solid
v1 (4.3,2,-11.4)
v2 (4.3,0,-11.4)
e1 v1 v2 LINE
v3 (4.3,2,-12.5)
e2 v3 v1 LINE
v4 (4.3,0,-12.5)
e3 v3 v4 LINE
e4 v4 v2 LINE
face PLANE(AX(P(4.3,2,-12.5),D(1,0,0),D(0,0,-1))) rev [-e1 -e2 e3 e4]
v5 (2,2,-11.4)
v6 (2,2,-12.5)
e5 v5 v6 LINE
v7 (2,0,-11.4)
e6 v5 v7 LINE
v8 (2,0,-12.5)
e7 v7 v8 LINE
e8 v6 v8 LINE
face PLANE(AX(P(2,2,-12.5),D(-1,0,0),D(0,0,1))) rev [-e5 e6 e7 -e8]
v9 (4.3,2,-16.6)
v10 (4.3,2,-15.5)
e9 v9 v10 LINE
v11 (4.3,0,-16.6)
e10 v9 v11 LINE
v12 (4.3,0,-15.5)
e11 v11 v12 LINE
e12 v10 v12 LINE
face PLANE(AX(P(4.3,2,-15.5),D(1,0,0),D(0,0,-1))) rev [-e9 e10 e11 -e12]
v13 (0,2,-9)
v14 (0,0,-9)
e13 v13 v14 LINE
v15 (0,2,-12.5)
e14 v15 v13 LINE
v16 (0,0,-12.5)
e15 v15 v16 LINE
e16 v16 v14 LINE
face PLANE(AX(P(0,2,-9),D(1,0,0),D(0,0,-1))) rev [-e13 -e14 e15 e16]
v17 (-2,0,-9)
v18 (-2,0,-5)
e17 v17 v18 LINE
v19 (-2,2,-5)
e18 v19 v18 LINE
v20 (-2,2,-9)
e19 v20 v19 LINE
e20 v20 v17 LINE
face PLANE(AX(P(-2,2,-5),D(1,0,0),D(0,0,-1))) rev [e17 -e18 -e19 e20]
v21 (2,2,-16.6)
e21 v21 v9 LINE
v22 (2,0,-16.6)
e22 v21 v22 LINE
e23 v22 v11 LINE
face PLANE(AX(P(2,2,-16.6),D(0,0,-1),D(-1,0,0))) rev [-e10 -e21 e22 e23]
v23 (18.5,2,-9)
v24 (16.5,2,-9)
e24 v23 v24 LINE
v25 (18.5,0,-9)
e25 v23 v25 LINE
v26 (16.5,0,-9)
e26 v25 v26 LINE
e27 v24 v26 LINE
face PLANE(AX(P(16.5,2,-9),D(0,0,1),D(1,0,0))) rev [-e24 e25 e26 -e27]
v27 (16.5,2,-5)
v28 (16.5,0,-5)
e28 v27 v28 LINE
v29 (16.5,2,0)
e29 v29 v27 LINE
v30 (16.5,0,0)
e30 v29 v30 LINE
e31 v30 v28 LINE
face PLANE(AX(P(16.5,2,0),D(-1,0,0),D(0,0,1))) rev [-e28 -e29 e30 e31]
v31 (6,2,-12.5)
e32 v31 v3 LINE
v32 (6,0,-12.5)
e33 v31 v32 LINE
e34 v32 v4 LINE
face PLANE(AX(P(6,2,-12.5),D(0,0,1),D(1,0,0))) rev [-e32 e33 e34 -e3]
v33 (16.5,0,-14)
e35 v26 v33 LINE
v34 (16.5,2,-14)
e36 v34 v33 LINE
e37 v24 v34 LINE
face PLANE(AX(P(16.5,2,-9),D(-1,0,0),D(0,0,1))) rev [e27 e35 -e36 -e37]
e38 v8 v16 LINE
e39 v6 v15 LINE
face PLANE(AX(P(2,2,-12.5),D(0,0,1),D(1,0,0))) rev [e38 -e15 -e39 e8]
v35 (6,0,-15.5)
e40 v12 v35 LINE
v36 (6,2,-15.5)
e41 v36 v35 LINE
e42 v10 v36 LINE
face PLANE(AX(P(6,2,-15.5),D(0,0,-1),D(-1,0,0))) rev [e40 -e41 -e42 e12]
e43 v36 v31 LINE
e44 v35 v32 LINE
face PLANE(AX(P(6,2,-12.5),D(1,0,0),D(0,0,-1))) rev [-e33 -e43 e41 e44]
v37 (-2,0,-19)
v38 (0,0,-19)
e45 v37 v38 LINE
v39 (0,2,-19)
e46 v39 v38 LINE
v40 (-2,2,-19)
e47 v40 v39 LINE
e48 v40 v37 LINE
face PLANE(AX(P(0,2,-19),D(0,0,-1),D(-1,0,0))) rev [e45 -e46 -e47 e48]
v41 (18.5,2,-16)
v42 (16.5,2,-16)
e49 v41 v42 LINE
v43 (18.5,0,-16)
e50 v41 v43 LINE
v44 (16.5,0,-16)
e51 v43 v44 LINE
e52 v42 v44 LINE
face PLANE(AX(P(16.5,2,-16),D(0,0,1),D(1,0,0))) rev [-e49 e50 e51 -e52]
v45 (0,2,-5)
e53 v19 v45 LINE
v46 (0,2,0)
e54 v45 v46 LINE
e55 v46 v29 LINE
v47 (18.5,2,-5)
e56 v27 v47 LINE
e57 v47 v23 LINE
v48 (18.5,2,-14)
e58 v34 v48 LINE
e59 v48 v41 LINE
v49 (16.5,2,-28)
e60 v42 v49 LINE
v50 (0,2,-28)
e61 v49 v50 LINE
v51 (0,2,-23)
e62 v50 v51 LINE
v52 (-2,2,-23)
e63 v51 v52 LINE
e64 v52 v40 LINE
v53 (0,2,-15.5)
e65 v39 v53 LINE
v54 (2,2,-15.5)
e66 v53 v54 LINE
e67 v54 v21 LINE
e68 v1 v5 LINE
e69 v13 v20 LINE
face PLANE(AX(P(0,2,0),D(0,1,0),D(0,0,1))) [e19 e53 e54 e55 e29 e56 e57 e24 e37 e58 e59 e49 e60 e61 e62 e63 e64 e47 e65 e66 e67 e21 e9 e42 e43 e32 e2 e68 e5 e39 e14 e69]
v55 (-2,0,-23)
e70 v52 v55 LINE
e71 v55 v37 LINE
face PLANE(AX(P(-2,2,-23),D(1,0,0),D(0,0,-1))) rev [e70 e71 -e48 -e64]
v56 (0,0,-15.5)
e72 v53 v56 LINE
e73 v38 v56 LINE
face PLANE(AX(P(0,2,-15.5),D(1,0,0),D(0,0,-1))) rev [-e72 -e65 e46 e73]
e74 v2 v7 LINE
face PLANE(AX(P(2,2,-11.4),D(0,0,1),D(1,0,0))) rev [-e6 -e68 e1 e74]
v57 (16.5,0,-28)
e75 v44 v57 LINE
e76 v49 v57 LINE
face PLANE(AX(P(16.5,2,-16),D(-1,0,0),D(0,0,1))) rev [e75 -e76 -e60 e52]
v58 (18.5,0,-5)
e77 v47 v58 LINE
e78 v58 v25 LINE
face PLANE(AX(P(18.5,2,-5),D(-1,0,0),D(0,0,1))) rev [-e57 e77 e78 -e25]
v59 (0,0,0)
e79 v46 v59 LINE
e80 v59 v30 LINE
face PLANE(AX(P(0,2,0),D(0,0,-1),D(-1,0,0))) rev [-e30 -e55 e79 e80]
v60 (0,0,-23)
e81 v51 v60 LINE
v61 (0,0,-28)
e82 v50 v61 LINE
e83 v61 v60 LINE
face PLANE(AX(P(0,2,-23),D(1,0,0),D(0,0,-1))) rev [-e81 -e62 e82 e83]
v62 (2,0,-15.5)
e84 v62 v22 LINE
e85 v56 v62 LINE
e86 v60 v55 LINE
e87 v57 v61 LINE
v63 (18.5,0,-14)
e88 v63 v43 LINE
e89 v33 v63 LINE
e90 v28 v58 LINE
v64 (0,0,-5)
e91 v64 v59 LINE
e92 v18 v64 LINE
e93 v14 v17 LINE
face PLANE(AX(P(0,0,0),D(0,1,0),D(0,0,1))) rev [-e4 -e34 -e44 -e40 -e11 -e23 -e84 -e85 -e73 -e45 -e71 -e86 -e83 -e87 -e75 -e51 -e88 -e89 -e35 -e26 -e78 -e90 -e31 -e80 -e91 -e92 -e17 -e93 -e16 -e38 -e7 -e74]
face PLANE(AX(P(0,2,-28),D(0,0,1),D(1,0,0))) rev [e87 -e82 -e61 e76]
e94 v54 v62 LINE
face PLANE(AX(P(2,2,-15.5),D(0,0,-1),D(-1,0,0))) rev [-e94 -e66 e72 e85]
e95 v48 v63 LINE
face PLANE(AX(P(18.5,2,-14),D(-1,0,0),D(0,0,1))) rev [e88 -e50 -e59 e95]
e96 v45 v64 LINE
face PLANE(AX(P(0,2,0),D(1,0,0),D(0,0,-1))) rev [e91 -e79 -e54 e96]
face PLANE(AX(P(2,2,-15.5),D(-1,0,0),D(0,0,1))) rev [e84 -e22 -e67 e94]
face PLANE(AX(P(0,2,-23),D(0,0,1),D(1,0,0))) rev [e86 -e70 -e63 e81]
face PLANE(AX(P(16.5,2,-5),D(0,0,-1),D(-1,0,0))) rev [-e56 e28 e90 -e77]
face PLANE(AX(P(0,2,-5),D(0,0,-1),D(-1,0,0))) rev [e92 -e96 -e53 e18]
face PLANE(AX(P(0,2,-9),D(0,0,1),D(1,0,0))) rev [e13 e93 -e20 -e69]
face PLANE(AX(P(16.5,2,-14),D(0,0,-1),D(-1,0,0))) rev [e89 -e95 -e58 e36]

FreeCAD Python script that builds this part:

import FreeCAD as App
import Part
import Sketcher

V = App.Vector
Q = App.Units.Quantity

doc = App.newDocument("Part")
params = doc.addObject("Spreadsheet::Sheet", "Params")
for row, (alias, value) in enumerate([
    ("sketch1_width", "2 mm"),
    ("sketch1_height", "5 mm"),
    ("sketch1_height2", "4 mm"),
    ("sketch1_height3", "12 mm"),
    ("sketch1_height4", "3 mm"),
    ("pad1_length", "2 mm"),
], start=1):
    params.set(f"A{row}", alias)
    params.set(f"B{row}", "=" + value)
    params.setAlias(f"B{row}", alias)

body = doc.addObject("PartDesign::Body", "Body")

# Sketch on XZ plane
sketch1 = body.newObject("Sketcher::SketchObject", "Sketch")
sketch1.AttachmentSupport = (doc.getObject("XZ_Plane"), [""])
sketch1.MapMode = "FlatFace"
sketch1.addGeometry([
    Part.LineSegment(V(0, 0, 0), V(16.5, 0, 0)),  # 0
    Part.LineSegment(V(16.5, 0, 0), V(16.5, -5, 0)),  # 1
    Part.LineSegment(V(16.5, -5, 0), V(18.5, -5, 0)),  # 2
    Part.LineSegment(V(18.5, -5, 0), V(18.5, -9, 0)),  # 3
    Part.LineSegment(V(18.5, -9, 0), V(16.5, -9, 0)),  # 4
    Part.LineSegment(V(16.5, -9, 0), V(16.5, -14, 0)),  # 5
    Part.LineSegment(V(16.5, -14, 0), V(18.5, -14, 0)),  # 6
    Part.LineSegment(V(18.5, -14, 0), V(18.5, -16, 0)),  # 7
    Part.LineSegment(V(18.5, -16, 0), V(16.5, -16, 0)),  # 8
    Part.LineSegment(V(16.5, -16, 0), V(16.5, -28, 0)),  # 9
    Part.LineSegment(V(16.5, -28, 0), V(0, -28, 0)),  # 10
    Part.LineSegment(V(0, -28, 0), V(0, -23, 0)),  # 11
    Part.LineSegment(V(0, -23, 0), V(-2, -23, 0)),  # 12
    Part.LineSegment(V(-2, -23, 0), V(-2, -19, 0)),  # 13
    Part.LineSegment(V(-2, -19, 0), V(0, -19, 0)),  # 14
    Part.LineSegment(V(0, -19, 0), V(0, -15.5, 0)),  # 15
    Part.LineSegment(V(0, -15.5, 0), V(2, -15.5, 0)),  # 16
    Part.LineSegment(V(2, -15.5, 0), V(2, -16.6, 0)),  # 17
    Part.LineSegment(V(2, -16.6, 0), V(4.3, -16.6, 0)),  # 18
    Part.LineSegment(V(4.3, -16.6, 0), V(4.3, -15.5, 0)),  # 19
    Part.LineSegment(V(4.3, -15.5, 0), V(6, -15.5, 0)),  # 20
    Part.LineSegment(V(6, -15.5, 0), V(6, -12.5, 0)),  # 21
    Part.LineSegment(V(6, -12.5, 0), V(4.3, -12.5, 0)),  # 22
    Part.LineSegment(V(4.3, -12.5, 0), V(4.3, -11.4, 0)),  # 23
    Part.LineSegment(V(4.3, -11.4, 0), V(2, -11.4, 0)),  # 24
    Part.LineSegment(V(2, -11.4, 0), V(2, -12.5, 0)),  # 25
    Part.LineSegment(V(2, -12.5, 0), V(0, -12.5, 0)),  # 26
    Part.LineSegment(V(0, -12.5, 0), V(0, -9, 0)),  # 27
    Part.LineSegment(V(0, -9, 0), V(-2, -9, 0)),  # 28
    Part.LineSegment(V(-2, -9, 0), V(-2, -5, 0)),  # 29
    Part.LineSegment(V(-2, -5, 0), V(0, -5, 0)),  # 30
    Part.LineSegment(V(0, -5, 0), V(0, 0, 0)),  # 31
], False)
sketch1.addConstraint([
    Sketcher.Constraint("Coincident", 0, 2, 1, 1),
    Sketcher.Constraint("Coincident", 1, 2, 2, 1),
    Sketcher.Constraint("Coincident", 2, 2, 3, 1),
    Sketcher.Constraint("Coincident", 3, 2, 4, 1),
    Sketcher.Constraint("Coincident", 4, 2, 5, 1),
    Sketcher.Constraint("Coincident", 5, 2, 6, 1),
    Sketcher.Constraint("Coincident", 6, 2, 7, 1),
    Sketcher.Constraint("Coincident", 7, 2, 8, 1),
    Sketcher.Constraint("Coincident", 8, 2, 9, 1),
    Sketcher.Constraint("Coincident", 9, 2, 10, 1),
    Sketcher.Constraint("Coincident", 10, 2, 11, 1),
    Sketcher.Constraint("Coincident", 11, 2, 12, 1),
    Sketcher.Constraint("Coincident", 12, 2, 13, 1),
    Sketcher.Constraint("Coincident", 13, 2, 14, 1),
    Sketcher.Constraint("Coincident", 14, 2, 15, 1),
    Sketcher.Constraint("Coincident", 15, 2, 16, 1),
    Sketcher.Constraint("Coincident", 16, 2, 17, 1),
    Sketcher.Constraint("Coincident", 17, 2, 18, 1),
    Sketcher.Constraint("Coincident", 18, 2, 19, 1),
    Sketcher.Constraint("Coincident", 19, 2, 20, 1),
    Sketcher.Constraint("Coincident", 20, 2, 21, 1),
    Sketcher.Constraint("Coincident", 21, 2, 22, 1),
    Sketcher.Constraint("Coincident", 22, 2, 23, 1),
    Sketcher.Constraint("Coincident", 23, 2, 24, 1),
    Sketcher.Constraint("Coincident", 24, 2, 25, 1),
    Sketcher.Constraint("Coincident", 25, 2, 26, 1),
    Sketcher.Constraint("Coincident", 26, 2, 27, 1),
    Sketcher.Constraint("Coincident", 27, 2, 28, 1),
    Sketcher.Constraint("Coincident", 28, 2, 29, 1),
    Sketcher.Constraint("Coincident", 29, 2, 30, 1),
    Sketcher.Constraint("Coincident", 30, 2, 31, 1),
    Sketcher.Constraint("Coincident", 31, 2, 0, 1),
    Sketcher.Constraint("Horizontal", 0),
    Sketcher.Constraint("Vertical", 1),
    Sketcher.Constraint("Horizontal", 2),
    Sketcher.Constraint("Vertical", 3),
    Sketcher.Constraint("Horizontal", 4),
    Sketcher.Constraint("Vertical", 5),
    Sketcher.Constraint("Horizontal", 6),
    Sketcher.Constraint("Vertical", 7),
    Sketcher.Constraint("Horizontal", 8),
    Sketcher.Constraint("Vertical", 9),
    Sketcher.Constraint("Horizontal", 10),
    Sketcher.Constraint("Vertical", 11),
    Sketcher.Constraint("Horizontal", 12),
    Sketcher.Constraint("Vertical", 13),
    Sketcher.Constraint("Horizontal", 14),
    Sketcher.Constraint("Vertical", 15),
    Sketcher.Constraint("Horizontal", 16),
    Sketcher.Constraint("Vertical", 17),
    Sketcher.Constraint("Horizontal", 18),
    Sketcher.Constraint("Vertical", 19),
    Sketcher.Constraint("Horizontal", 20),
    Sketcher.Constraint("Vertical", 21),
    Sketcher.Constraint("Horizontal", 22),
    Sketcher.Constraint("Vertical", 23),
    Sketcher.Constraint("Horizontal", 24),
    Sketcher.Constraint("Vertical", 25),
    Sketcher.Constraint("Horizontal", 26),
    Sketcher.Constraint("Vertical", 27),
    Sketcher.Constraint("Horizontal", 28),
    Sketcher.Constraint("Vertical", 29),
    Sketcher.Constraint("Horizontal", 30),
    Sketcher.Constraint("Vertical", 31),
    Sketcher.Constraint("Coincident", 31, 2, -1, 1),
    Sketcher.Constraint("PointOnObject", 10, 2, -2),
    Sketcher.Constraint("PointOnObject", 14, 2, -2),
    Sketcher.Constraint("PointOnObject", 26, 2, -2),
    Sketcher.Constraint("Horizontal", 16, 2, 19, 2),
    Sketcher.Constraint("Horizontal", 22, 2, 25, 2),
    Sketcher.Constraint("Horizontal", 4, 2, 27, 2),
    Sketcher.Constraint("Horizontal", 2, 2, 29, 2),
    Sketcher.Constraint("Vertical", 1, 2, 4, 2),
    Sketcher.Constraint("Vertical", 3, 2, 6, 2),
    Sketcher.Constraint("Vertical", 5, 2, 8, 2),
    Sketcher.Constraint("Vertical", 19, 2, 22, 2),
    Sketcher.Constraint("Vertical", 17, 2, 24, 2),
    Sketcher.Constraint("Vertical", 13, 2, 28, 2),
    Sketcher.Constraint("Equal", 8, 12),
    Sketcher.Constraint("Equal", 14, 16),
    Sketcher.Constraint("Equal", 1, 5),
    Sketcher.Constraint("Equal", 30, 7),
    Sketcher.Constraint("Equal", 5, 11),
    Sketcher.Constraint("Equal", 3, 13),
    Sketcher.Constraint("Equal", 19, 23),
    Sketcher.Constraint("Equal", 15, 27),
    Sketcher.Constraint("DistanceX", 2, 1, 2, 2, Q("2 mm")),
    Sketcher.Constraint("DistanceY", 1, 2, 1, 1, Q("5 mm")),
    Sketcher.Constraint("DistanceY", 3, 2, 3, 1, Q("4 mm")),
    Sketcher.Constraint("DistanceY", 9, 2, 9, 1, Q("12 mm")),
    Sketcher.Constraint("DistanceY", 21, 1, 21, 2, Q("3 mm")),
    Sketcher.Constraint("DistanceX", 0, 1, 0, 2, Q("16.5 mm")),
    Sketcher.Constraint("DistanceX", 18, 1, 18, 2, Q("2.3 mm")),
    Sketcher.Constraint("DistanceX", 20, 1, 20, 2, Q("1.7 mm")),
    Sketcher.Constraint("DistanceY", 17, 2, 17, 1, Q("1.1 mm")),
])
sketch1.setExpression("Constraints[86]", "Params.sketch1_width")
sketch1.setExpression("Constraints[87]", "Params.sketch1_height")
sketch1.setExpression("Constraints[88]", "Params.sketch1_height2")
sketch1.setExpression("Constraints[89]", "Params.sketch1_height3")
sketch1.setExpression("Constraints[90]", "Params.sketch1_height4")
pad1 = body.newObject("PartDesign::Pad", "Pad")
pad1.Profile = sketch1
pad1.setExpression("Length", "Params.pad1_length")
pad1.Reversed = True

doc.recompute()
